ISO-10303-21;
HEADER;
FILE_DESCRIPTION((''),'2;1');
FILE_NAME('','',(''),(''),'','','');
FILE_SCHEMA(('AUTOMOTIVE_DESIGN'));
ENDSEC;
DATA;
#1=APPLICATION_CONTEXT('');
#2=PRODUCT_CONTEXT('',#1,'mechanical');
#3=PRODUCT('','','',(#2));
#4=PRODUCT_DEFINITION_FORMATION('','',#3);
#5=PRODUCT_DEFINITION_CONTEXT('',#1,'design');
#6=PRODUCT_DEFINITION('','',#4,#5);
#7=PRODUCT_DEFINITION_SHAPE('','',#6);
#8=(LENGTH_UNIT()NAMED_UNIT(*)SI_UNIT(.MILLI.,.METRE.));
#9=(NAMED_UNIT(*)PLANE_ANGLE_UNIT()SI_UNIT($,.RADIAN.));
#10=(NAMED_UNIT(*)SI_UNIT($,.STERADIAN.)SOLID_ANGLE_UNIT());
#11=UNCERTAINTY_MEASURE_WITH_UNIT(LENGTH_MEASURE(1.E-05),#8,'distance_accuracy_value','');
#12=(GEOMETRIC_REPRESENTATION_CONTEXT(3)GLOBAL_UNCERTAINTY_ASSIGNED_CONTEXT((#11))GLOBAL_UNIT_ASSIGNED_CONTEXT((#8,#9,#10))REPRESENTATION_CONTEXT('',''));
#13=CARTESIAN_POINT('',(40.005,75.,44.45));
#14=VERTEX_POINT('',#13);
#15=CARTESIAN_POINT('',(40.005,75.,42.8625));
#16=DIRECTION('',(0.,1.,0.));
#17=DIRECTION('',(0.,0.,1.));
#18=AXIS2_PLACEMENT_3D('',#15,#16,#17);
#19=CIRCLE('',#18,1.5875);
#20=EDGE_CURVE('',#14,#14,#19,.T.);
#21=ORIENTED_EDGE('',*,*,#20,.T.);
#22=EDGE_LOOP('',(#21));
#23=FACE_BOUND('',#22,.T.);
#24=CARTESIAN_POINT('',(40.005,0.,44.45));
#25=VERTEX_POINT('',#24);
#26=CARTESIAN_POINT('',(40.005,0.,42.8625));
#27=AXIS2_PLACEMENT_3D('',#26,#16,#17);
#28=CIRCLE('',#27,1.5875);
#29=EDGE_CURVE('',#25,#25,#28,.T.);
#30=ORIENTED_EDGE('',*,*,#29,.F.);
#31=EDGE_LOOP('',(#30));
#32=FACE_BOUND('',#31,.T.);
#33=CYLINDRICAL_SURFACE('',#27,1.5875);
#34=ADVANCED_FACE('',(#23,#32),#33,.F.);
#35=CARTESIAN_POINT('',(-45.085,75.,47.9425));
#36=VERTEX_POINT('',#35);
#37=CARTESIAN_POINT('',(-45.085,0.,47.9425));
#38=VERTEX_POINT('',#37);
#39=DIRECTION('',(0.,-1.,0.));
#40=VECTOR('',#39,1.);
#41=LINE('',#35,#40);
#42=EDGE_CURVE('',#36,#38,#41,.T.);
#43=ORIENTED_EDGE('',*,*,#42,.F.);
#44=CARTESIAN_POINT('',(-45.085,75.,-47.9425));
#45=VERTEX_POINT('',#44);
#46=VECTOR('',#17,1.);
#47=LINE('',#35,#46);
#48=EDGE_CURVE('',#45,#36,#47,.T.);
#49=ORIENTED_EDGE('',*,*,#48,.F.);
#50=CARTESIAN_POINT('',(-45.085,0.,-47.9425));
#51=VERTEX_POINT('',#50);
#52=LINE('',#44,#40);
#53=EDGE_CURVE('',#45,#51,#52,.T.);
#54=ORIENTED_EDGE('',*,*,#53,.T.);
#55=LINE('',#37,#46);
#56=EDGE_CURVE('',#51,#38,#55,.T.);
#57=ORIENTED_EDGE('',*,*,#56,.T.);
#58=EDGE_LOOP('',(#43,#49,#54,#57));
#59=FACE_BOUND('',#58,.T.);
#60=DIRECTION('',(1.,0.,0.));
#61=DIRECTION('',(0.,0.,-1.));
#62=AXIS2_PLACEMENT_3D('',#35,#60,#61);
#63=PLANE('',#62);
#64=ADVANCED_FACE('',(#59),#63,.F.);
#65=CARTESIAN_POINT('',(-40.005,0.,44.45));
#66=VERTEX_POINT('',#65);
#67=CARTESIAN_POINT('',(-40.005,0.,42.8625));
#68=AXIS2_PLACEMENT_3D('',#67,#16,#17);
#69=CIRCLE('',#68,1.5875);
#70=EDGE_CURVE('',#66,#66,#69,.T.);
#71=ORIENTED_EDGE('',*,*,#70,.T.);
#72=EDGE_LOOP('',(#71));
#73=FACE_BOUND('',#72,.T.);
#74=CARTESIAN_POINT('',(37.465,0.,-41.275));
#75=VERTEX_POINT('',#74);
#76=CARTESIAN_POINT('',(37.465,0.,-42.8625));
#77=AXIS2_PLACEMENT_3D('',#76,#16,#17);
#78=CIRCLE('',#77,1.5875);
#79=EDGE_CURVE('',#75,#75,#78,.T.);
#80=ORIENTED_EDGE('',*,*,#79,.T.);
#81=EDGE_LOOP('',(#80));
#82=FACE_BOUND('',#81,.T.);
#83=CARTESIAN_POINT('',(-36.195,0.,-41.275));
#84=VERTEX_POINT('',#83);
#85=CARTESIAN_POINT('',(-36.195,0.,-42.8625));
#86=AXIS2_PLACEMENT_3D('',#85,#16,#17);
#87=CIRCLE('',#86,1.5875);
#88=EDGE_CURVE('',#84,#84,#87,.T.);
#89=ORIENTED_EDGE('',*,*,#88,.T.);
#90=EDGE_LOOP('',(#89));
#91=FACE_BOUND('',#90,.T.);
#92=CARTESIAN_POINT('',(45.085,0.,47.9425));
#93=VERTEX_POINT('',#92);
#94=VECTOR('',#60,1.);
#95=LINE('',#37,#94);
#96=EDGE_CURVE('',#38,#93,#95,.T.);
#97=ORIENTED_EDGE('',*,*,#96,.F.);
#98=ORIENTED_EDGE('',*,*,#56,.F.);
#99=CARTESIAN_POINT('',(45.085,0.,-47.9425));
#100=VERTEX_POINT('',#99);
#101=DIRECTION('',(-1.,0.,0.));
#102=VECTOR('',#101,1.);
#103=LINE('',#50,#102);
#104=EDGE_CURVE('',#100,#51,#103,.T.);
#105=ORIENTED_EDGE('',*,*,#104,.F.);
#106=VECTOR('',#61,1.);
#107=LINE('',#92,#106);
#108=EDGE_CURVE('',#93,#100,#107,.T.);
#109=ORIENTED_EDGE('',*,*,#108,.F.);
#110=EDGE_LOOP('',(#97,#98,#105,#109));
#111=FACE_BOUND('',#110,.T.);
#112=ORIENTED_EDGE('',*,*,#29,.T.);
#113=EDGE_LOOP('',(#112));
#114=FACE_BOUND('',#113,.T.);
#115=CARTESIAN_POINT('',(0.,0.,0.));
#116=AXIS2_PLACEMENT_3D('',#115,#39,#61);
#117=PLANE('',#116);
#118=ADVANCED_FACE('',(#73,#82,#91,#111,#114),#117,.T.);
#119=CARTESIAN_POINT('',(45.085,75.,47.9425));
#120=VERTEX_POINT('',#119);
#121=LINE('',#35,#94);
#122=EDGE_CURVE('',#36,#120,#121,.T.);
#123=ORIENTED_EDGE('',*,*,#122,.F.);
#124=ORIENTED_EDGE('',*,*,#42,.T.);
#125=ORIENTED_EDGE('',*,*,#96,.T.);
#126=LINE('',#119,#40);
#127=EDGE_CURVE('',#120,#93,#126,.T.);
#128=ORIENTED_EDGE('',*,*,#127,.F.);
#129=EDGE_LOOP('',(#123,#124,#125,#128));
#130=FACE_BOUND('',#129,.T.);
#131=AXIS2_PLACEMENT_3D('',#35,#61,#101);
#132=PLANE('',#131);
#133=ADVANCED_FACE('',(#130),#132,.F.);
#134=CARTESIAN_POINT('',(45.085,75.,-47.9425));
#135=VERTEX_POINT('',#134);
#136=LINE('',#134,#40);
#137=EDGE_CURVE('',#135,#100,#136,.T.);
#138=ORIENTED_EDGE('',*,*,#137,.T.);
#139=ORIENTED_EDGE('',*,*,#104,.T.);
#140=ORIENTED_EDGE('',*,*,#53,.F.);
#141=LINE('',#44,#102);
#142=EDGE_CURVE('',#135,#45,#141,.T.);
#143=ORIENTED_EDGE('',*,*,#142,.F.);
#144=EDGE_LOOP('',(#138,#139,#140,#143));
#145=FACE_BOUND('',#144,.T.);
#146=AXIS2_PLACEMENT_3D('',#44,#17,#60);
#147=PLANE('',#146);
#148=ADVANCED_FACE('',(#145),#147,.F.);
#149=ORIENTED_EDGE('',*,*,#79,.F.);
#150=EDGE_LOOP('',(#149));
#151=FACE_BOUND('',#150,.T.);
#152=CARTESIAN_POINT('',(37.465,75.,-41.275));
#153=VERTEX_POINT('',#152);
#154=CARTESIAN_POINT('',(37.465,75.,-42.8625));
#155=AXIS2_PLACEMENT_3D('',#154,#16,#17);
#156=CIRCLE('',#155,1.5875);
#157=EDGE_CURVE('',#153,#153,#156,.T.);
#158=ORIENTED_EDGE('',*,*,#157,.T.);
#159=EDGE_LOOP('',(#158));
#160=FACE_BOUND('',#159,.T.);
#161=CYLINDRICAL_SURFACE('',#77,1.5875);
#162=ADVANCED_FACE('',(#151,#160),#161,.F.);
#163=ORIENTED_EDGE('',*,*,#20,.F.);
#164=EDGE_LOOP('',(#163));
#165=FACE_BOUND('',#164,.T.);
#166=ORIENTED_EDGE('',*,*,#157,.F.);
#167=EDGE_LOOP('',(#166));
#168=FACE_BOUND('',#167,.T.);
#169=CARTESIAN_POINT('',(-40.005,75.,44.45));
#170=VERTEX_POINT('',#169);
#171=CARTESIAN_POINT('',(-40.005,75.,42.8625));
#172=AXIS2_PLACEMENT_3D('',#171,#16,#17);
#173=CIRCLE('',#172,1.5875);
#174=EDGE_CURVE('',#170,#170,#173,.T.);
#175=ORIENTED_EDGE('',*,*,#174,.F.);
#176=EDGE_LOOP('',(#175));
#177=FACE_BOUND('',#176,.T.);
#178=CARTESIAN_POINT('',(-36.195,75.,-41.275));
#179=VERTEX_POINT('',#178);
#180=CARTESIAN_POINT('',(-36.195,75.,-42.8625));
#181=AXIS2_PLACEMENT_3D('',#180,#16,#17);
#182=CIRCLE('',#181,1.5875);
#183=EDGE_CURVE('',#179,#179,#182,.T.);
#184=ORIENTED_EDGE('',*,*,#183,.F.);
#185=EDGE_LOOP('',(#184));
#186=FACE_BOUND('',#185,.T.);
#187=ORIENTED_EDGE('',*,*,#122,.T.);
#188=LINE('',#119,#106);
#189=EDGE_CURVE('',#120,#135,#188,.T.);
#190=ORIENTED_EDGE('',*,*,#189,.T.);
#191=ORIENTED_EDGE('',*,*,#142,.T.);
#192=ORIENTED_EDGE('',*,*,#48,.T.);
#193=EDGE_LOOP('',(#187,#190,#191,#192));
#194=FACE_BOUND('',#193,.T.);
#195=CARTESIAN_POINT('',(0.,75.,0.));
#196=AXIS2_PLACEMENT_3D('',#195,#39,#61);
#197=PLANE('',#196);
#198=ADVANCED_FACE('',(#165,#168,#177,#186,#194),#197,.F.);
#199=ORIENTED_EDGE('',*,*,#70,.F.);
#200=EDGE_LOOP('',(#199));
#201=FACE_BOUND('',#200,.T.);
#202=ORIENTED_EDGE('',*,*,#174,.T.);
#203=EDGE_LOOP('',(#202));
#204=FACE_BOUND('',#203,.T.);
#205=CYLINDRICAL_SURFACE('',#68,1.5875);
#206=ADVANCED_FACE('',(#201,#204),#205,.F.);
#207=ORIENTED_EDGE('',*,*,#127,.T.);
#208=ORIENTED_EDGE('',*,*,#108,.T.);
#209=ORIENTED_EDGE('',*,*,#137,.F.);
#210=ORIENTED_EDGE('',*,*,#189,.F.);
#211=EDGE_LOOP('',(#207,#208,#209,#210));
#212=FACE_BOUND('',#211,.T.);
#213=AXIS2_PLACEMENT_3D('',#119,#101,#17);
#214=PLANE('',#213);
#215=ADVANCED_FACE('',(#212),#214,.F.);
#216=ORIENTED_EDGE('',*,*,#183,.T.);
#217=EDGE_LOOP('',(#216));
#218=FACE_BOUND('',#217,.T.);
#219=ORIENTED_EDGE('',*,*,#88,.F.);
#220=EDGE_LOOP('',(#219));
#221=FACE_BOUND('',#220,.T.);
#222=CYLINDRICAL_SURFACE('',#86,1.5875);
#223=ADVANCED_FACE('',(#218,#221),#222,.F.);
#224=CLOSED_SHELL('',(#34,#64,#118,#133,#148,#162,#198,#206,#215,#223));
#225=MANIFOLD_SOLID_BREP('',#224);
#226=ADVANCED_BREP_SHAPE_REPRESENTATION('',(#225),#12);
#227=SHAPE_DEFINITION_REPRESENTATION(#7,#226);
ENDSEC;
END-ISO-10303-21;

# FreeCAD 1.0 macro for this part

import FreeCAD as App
import Part
import Sketcher

V = App.Vector
Q = App.Units.Quantity


def add_polygon(sketch, points):
    """Adds a closed chain of lines whose ends are joined by coincident constraints."""
    first, n = sketch.GeometryCount, len(points)
    for a, b in zip(points, points[1:] + points[:1]):
        sketch.addGeometry(Part.LineSegment(App.Vector(*a, 0), App.Vector(*b, 0)), False)
    for i in range(n):
        sketch.addConstraint(Sketcher.Constraint("Coincident", first + i, 2, first + (i + 1) % n, 1))

doc = App.newDocument("Part")
body = doc.addObject("PartDesign::Body", "Body")

# Sketch on XZ plane
sketch1 = body.newObject("Sketcher::SketchObject", "Sketch")
sketch1.AttachmentSupport = (doc.getObject("XZ_Plane"), [""])
sketch1.MapMode = "FlatFace"
add_polygon(sketch1, [(-45.085, -47.9425), (-45.085, 47.9425), (45.085, 47.9425), (45.085, -47.9425)])  # lines 0-3
sketch1.addConstraint(Sketcher.Constraint("Vertical", 0))
sketch1.addConstraint(Sketcher.Constraint("Horizontal", 1))
sketch1.addConstraint(Sketcher.Constraint("Vertical", 2))
sketch1.addConstraint(Sketcher.Constraint("Horizontal", 3))
sketch1.addConstraint(Sketcher.Constraint("Symmetric", 0, 2, 2, 2, -1, 1))
sketch1.addConstraint(Sketcher.Constraint("DistanceX", 1, 1, 1, 2, Q("3.55 in")))
sketch1.addConstraint(Sketcher.Constraint("DistanceY", 0, 1, 0, 2, Q("3.775 in")))
pad1 = body.newObject("PartDesign::Pad", "Pad")
pad1.Profile = sketch1
pad1.Length = 75
pad1.Reversed = True

# Sketch on XZ plane
sketch2 = body.newObject("Sketcher::SketchObject", "Sketch001")
sketch2.AttachmentSupport = (doc.getObject("XZ_Plane"), [""])
sketch2.MapMode = "FlatFace"
sketch2.AttachmentOffset = App.Placement(V(0, 0, -75), App.Rotation())
sketch2.addGeometry(Part.Circle(V(-40.005, 42.8625, 0), V(0, 0, 1), 1.5875), False)
sketch2.addGeometry(Part.Circle(V(40.005, 42.8625, 0), V(0, 0, 1), 1.5875), False)
sketch2.addGeometry(Part.Circle(V(-36.195, -42.8625, 0), V(0, 0, 1), 1.5875), False)
sketch2.addGeometry(Part.Circle(V(37.465, -42.8625, 0), V(0, 0, 1), 1.5875), False)
sketch2.addConstraint(Sketcher.Constraint("Equal", 0, 1))
sketch2.addConstraint(Sketcher.Constraint("Equal", 1, 2))
sketch2.addConstraint(Sketcher.Constraint("Equal", 2, 3))
sketch2.addConstraint(Sketcher.Constraint("Symmetric", 0, 3, 1, 3, -2))
sketch2.addConstraint(Sketcher.Constraint("Horizontal", 2, 3, 3, 3))
sketch2.addConstraint(Sketcher.Constraint("Diameter", 0, Q("0.125 in")))
sketch2.addConstraint(Sketcher.Constraint("DistanceX", 2, 3, 1, 3, Q("3 in")))
sketch2.addConstraint(Sketcher.Constraint("DistanceX", 2, 3, 3, 3, Q("2.9 in")))
sketch2.addConstraint(Sketcher.Constraint("DistanceX", 0, 3, 1, 3, Q("3.15 in")))
sketch2.addConstraint(Sketcher.Constraint("DistanceY", -1, 1, 0, 3, Q("1.6875 in")))
sketch2.addConstraint(Sketcher.Constraint("DistanceY", 2, 3, -1, 1, Q("1.6875 in")))
pocket1 = body.newObject("PartDesign::Pocket", "Pocket")
pocket1.Profile = sketch2
pocket1.Type = "ThroughAll"
pocket1.Reversed = True

doc.recompute()
